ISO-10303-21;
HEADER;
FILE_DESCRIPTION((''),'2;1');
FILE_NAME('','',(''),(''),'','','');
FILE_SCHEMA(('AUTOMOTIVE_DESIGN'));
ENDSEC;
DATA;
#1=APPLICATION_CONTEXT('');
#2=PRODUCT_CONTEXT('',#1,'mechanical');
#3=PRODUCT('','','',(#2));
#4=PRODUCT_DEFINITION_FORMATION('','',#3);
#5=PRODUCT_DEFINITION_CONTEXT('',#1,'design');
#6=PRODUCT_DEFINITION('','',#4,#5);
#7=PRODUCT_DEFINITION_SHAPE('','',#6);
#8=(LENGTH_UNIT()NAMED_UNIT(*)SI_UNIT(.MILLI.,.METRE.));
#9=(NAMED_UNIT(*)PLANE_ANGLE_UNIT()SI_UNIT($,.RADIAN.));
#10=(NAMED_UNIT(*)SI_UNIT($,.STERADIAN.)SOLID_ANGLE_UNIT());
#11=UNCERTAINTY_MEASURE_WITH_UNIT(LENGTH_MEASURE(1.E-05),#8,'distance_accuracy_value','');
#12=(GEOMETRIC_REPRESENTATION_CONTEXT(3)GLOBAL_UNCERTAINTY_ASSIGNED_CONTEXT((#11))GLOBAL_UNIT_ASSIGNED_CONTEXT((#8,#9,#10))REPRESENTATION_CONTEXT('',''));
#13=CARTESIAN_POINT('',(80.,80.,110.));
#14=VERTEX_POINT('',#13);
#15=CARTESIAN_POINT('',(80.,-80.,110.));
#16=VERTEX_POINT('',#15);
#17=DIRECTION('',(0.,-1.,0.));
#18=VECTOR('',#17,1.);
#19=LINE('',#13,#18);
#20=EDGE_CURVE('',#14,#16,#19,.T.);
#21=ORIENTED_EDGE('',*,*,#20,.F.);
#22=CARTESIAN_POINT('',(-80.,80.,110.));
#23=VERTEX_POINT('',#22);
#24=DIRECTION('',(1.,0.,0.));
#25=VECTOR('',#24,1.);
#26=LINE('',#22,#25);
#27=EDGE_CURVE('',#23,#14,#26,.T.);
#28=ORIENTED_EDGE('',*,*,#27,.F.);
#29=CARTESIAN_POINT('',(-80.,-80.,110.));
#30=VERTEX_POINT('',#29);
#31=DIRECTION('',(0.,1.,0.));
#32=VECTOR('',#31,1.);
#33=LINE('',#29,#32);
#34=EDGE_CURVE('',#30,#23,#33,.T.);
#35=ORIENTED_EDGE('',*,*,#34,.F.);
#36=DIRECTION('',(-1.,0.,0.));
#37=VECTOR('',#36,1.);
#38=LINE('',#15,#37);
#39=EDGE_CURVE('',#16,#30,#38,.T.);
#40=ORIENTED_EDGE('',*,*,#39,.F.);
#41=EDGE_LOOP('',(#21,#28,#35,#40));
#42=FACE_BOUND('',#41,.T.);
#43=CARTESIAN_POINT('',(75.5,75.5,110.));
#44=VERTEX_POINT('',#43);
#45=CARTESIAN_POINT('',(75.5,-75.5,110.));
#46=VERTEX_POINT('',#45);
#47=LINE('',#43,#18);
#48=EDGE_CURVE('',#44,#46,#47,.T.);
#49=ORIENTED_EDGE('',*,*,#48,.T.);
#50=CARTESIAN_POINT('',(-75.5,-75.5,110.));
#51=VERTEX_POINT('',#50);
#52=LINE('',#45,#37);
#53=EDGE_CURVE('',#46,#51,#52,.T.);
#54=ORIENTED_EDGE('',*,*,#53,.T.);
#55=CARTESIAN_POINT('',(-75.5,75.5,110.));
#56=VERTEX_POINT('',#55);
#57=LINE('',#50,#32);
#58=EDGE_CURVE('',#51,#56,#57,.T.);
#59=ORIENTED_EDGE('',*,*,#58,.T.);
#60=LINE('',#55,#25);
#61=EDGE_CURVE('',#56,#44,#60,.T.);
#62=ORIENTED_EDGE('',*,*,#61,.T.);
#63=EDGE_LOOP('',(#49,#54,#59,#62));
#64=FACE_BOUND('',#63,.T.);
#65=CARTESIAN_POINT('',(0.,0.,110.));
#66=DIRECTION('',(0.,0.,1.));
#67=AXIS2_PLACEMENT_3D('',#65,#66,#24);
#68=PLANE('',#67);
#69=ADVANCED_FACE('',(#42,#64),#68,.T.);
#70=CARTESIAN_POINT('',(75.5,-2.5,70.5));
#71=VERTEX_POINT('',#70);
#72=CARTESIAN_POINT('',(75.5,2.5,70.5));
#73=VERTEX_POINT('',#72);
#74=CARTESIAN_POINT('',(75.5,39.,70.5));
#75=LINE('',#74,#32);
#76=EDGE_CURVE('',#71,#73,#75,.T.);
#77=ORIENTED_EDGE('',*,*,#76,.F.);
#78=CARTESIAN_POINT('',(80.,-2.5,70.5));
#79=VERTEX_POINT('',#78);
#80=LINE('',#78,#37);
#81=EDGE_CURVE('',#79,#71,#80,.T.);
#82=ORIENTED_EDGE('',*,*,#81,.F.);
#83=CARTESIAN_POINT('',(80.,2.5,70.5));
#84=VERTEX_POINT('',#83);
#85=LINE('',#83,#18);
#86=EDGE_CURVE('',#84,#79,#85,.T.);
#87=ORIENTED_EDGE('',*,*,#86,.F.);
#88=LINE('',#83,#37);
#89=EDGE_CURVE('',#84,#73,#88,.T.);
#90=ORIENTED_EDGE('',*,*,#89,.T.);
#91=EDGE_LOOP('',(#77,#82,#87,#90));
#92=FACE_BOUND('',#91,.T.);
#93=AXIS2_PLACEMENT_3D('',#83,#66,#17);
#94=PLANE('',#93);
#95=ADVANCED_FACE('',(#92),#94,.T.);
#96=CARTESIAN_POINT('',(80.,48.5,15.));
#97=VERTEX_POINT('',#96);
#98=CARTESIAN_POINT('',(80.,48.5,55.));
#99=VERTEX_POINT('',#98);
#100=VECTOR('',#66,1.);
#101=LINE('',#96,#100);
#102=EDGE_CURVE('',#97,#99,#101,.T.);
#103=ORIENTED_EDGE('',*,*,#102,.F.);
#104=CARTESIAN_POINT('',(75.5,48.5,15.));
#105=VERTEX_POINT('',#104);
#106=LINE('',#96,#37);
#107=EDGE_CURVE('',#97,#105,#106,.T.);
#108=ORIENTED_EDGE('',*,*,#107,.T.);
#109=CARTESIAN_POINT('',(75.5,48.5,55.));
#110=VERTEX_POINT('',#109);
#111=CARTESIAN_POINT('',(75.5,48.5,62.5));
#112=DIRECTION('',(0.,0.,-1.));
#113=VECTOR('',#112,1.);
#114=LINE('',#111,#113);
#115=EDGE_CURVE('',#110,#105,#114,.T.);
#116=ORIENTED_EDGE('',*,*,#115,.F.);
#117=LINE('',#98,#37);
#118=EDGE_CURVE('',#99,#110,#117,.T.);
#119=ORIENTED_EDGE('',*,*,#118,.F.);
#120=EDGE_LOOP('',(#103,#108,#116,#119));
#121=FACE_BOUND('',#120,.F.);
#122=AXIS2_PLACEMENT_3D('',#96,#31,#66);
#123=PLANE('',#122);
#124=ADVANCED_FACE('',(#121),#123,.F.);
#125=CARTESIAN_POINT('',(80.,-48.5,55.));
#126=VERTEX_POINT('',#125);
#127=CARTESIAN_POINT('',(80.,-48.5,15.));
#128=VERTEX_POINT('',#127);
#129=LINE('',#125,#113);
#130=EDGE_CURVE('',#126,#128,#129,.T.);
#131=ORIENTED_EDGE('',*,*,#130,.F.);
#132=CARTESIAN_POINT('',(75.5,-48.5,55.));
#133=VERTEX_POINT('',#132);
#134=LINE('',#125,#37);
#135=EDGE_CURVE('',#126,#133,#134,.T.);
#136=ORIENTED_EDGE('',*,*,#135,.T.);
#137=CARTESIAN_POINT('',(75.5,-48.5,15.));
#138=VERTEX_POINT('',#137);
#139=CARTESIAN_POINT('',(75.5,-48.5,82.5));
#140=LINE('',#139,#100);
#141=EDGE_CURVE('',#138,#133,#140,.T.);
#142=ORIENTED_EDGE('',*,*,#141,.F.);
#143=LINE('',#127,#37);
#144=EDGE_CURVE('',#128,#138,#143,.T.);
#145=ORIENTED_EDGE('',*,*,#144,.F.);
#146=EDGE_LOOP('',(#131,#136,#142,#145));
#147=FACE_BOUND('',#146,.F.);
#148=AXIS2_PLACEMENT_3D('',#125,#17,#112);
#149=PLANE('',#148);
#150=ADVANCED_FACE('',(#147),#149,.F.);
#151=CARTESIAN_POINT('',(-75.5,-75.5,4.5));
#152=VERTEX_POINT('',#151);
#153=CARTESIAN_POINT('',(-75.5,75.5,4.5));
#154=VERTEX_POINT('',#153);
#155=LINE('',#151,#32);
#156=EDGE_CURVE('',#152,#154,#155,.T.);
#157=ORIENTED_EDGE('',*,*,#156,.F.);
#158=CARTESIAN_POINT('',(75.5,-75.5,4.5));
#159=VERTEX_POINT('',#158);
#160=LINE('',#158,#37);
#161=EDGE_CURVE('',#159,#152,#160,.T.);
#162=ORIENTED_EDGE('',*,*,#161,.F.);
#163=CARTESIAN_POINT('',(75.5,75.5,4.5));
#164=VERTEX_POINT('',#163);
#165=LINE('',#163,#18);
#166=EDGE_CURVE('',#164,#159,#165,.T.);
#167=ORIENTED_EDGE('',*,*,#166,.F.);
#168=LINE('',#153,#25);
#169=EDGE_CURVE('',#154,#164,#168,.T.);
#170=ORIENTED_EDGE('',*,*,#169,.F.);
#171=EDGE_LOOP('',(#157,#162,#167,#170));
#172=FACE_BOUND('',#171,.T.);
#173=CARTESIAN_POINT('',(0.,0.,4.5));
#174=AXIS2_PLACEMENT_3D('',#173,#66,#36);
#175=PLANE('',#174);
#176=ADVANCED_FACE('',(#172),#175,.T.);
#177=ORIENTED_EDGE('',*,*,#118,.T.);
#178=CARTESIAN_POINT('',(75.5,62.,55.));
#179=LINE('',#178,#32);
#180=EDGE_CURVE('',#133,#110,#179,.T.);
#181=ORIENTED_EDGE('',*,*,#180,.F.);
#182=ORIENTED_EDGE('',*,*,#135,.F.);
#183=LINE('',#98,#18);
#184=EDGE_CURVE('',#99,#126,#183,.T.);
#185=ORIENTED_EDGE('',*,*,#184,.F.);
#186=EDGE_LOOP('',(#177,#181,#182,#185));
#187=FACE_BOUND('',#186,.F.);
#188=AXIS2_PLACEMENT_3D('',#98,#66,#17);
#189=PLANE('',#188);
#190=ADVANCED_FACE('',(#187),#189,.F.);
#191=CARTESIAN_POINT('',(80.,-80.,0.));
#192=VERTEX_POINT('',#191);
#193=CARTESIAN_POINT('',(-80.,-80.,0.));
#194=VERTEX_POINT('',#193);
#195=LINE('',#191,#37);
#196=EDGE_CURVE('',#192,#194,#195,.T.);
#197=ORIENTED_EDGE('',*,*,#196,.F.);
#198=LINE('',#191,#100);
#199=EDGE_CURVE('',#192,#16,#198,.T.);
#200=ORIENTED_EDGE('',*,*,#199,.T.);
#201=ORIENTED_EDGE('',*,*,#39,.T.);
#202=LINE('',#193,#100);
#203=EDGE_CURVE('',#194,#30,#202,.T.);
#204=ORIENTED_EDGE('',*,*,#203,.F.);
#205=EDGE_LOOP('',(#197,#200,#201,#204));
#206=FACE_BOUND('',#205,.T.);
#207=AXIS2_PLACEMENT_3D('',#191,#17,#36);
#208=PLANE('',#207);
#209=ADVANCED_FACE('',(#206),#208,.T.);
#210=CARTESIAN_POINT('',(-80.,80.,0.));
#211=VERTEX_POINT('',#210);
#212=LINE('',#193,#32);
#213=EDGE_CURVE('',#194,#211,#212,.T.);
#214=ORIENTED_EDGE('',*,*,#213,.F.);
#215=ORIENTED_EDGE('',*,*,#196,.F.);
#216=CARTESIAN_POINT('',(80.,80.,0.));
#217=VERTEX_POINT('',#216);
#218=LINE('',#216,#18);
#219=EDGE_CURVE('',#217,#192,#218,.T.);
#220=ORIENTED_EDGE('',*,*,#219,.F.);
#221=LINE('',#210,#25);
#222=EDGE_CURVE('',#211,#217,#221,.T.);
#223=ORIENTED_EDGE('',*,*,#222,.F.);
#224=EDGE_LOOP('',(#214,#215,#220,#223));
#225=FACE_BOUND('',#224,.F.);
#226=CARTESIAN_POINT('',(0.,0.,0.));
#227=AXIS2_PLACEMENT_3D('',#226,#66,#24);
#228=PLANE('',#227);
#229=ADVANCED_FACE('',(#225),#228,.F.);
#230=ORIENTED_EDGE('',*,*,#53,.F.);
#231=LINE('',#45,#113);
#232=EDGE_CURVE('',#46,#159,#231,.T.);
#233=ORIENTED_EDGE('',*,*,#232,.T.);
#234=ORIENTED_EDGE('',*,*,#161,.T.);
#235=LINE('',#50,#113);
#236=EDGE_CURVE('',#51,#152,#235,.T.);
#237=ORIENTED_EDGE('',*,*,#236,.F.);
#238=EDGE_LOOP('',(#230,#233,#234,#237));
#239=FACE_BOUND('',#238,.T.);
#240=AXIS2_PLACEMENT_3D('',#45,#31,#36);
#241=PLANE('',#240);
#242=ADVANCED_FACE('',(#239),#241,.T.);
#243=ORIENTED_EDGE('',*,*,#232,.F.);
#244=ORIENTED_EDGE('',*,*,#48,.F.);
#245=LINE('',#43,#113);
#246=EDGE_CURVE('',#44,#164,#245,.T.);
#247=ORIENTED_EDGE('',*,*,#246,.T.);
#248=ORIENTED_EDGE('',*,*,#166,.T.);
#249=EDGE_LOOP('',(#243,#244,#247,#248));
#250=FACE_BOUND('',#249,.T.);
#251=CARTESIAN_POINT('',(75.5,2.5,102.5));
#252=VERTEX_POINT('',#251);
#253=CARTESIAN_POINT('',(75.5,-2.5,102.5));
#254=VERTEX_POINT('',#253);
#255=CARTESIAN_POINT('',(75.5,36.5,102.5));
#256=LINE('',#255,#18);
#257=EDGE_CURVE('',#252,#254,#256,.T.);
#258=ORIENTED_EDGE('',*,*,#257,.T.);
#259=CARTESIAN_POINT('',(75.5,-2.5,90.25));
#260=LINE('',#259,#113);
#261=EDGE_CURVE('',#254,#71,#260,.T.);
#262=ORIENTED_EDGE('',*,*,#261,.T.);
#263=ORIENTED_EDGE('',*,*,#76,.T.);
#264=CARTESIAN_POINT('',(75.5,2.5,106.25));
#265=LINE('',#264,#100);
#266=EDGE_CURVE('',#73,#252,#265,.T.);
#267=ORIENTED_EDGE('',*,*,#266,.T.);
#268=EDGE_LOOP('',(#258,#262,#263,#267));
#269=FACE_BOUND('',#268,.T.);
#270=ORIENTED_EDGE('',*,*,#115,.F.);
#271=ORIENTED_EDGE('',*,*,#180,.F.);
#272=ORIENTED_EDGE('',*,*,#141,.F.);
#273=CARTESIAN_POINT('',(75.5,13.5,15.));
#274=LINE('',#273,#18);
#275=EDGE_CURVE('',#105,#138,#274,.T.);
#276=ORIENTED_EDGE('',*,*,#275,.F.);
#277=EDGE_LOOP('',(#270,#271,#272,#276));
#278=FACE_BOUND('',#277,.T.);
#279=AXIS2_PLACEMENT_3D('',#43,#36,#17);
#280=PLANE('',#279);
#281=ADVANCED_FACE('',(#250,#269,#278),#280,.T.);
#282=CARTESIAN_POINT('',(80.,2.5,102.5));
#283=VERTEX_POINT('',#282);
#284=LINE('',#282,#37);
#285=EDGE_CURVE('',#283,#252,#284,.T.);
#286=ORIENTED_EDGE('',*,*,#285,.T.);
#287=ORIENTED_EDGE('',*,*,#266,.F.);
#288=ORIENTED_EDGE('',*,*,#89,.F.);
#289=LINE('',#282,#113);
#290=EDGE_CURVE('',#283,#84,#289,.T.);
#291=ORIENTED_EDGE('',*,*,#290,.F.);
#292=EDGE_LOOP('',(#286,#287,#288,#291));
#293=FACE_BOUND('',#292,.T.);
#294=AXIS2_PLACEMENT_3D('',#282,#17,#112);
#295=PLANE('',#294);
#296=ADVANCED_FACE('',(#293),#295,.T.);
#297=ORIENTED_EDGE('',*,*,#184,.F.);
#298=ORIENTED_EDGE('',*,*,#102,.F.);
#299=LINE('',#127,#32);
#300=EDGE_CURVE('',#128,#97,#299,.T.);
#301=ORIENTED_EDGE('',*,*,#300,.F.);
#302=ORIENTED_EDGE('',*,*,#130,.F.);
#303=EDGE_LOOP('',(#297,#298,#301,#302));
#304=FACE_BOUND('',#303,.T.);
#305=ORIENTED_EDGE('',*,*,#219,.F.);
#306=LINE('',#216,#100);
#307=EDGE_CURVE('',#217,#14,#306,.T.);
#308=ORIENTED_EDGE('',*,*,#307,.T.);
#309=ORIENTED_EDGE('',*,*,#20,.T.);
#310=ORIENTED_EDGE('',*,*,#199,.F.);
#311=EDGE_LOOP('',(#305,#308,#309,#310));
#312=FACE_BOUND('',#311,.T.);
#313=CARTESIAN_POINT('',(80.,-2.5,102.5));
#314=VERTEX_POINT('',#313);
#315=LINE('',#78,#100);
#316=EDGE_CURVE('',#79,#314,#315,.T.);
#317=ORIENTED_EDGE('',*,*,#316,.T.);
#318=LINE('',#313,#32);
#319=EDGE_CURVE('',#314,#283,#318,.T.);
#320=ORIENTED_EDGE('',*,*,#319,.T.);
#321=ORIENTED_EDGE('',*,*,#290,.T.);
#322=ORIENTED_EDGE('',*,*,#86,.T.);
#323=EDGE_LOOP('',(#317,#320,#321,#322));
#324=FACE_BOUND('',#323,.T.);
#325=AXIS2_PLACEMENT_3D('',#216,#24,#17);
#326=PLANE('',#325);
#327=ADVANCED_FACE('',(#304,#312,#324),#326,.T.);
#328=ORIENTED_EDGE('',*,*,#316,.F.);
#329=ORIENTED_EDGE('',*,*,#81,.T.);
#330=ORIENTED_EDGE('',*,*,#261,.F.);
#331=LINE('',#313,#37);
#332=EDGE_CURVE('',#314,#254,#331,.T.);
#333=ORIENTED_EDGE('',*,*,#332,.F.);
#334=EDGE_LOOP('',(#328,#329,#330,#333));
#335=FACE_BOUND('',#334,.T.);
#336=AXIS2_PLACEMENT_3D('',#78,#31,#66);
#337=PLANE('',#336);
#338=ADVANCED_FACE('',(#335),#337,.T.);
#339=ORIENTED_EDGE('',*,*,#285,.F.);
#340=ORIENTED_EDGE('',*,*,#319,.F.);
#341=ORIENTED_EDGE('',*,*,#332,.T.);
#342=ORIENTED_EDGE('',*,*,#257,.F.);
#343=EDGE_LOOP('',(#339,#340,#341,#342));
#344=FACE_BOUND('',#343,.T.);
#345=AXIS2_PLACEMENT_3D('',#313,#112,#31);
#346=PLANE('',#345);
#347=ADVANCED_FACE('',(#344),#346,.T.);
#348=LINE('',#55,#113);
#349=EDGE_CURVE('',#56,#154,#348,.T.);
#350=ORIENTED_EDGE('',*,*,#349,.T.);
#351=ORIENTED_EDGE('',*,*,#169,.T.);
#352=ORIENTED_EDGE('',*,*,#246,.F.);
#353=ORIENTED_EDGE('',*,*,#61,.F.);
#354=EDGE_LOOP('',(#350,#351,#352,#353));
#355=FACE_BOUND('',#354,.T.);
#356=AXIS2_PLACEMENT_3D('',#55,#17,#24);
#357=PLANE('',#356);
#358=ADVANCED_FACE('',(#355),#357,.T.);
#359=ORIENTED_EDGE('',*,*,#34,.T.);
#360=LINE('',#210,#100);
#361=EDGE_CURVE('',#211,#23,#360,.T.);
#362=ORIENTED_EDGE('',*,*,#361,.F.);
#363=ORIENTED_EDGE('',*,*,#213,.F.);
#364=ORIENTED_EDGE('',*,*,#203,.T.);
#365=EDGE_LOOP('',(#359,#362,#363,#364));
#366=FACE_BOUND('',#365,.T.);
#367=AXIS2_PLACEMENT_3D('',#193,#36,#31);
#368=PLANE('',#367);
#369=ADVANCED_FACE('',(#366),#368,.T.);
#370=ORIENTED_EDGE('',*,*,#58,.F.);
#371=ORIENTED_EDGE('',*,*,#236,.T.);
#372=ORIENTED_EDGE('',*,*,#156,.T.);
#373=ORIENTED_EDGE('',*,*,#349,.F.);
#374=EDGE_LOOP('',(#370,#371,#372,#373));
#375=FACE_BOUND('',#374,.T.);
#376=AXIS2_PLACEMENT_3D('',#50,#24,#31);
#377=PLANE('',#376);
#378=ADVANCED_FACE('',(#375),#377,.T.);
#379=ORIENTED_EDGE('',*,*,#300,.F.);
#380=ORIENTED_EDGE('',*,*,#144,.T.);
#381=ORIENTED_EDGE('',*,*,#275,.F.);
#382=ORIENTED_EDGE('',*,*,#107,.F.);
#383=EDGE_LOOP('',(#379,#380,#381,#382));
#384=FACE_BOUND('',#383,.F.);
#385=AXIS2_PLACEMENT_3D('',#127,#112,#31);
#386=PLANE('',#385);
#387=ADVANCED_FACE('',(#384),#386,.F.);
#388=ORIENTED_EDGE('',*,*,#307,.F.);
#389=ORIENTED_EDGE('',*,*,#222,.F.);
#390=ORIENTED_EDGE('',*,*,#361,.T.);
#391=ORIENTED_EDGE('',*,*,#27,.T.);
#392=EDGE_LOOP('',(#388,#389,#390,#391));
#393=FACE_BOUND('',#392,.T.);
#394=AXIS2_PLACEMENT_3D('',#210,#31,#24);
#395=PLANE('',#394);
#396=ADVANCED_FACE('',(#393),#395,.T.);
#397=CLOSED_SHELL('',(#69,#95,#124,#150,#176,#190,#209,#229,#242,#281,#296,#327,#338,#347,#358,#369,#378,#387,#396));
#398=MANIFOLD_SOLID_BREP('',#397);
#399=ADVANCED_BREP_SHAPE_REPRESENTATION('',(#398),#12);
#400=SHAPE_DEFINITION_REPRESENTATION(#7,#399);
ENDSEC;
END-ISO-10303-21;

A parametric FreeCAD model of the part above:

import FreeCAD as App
import Part
import Sketcher

V = App.Vector
Q = App.Units.Quantity

doc = App.newDocument("Part")
body = doc.addObject("PartDesign::Body", "Body")

# Sketch on XY plane
sketch1 = doc.addObject("Sketcher::SketchObject", "Sketch")
body.addObject(sketch1)
sketch1.AttachmentSupport = (doc.XY_Plane, [""])
sketch1.MapMode = "FlatFace"
sketch1.addGeometry([
    Part.LineSegment(V(80, 80, 0), V(-80, 80, 0)),
    Part.LineSegment(V(-80, 80, 0), V(-80, -80, 0)),
    Part.LineSegment(V(-80, -80, 0), V(80, -80, 0)),
    Part.LineSegment(V(80, -80, 0), V(80, 80, 0)),
], False)
sketch1.addConstraint([
    Sketcher.Constraint("Coincident", 0, 2, 1, 1),
    Sketcher.Constraint("Coincident", 1, 2, 2, 1),
    Sketcher.Constraint("Coincident", 2, 2, 3, 1),
    Sketcher.Constraint("Coincident", 3, 2, 0, 1),
    Sketcher.Constraint("Horizontal", 0),
    Sketcher.Constraint("Vertical", 1),
    Sketcher.Constraint("Horizontal", 2),
    Sketcher.Constraint("Vertical", 3),
    Sketcher.Constraint("Symmetric", 0, 2, 2, 2, -1, 1),
    Sketcher.Constraint("Equal", 2, 1),
    Sketcher.Constraint("DistanceX", 0, 2, 0, 1, Q("160 mm")),
])
pad1 = doc.addObject("PartDesign::Pad", "Pad")
body.addObject(pad1)
pad1.Profile = sketch1
pad1.Length = 110

# Sketch on XY plane
sketch2 = doc.addObject("Sketcher::SketchObject", "Sketch001")
body.addObject(sketch2)
sketch2.AttachmentSupport = (doc.XY_Plane, [""])
sketch2.MapMode = "FlatFace"
sketch2.AttachmentOffset = App.Placement(V(0, 0, 110), App.Rotation())
sketch2.addGeometry([
    Part.LineSegment(V(76, 76, 0), V(-76, 76, 0)),
    Part.LineSegment(V(-76, 76, 0), V(-76, -76, 0)),
    Part.LineSegment(V(-76, -76, 0), V(76, -76, 0)),
    Part.LineSegment(V(76, -76, 0), V(76, 76, 0)),
], False)
sketch2.addConstraint([
    Sketcher.Constraint("Coincident", 0, 2, 1, 1),
    Sketcher.Constraint("Coincident", 1, 2, 2, 1),
    Sketcher.Constraint("Coincident", 2, 2, 3, 1),
    Sketcher.Constraint("Coincident", 3, 2, 0, 1),
    Sketcher.Constraint("Horizontal", 0),
    Sketcher.Constraint("Vertical", 1),
    Sketcher.Constraint("Horizontal", 2),
    Sketcher.Constraint("Vertical", 3),
    Sketcher.Constraint("Symmetric", 0, 2, 2, 2, -1, 1),
    Sketcher.Constraint("Equal", 2, 1),
    Sketcher.Constraint("DistanceX", 0, 2, 0, 1, Q("151 mm")),
])
pocket1 = doc.addObject("PartDesign::Pocket", "Pocket")
body.addObject(pocket1)
pocket1.Profile = sketch2
pocket1.Length = 105.5

# Sketch on YZ plane
sketch3 = doc.addObject("Sketcher::SketchObject", "Sketch002")
body.addObject(sketch3)
sketch3.AttachmentSupport = (doc.YZ_Plane, [""])
sketch3.MapMode = "FlatFace"
sketch3.AttachmentOffset = App.Placement(V(0, 0, 80), App.Rotation())
sketch3.addGeometry([
    Part.LineSegment(V(-2, 70, 0), V(2, 70, 0)),
    Part.LineSegment(V(2, 70, 0), V(2, 102, 0)),
    Part.LineSegment(V(2, 102, 0), V(-2, 102, 0)),
    Part.LineSegment(V(-2, 102, 0), V(-2, 70, 0)),
], False)
sketch3.addConstraint([
    Sketcher.Constraint("Coincident", 0, 2, 1, 1),
    Sketcher.Constraint("Coincident", 1, 2, 2, 1),
    Sketcher.Constraint("Coincident", 2, 2, 3, 1),
    Sketcher.Constraint("Coincident", 3, 2, 0, 1),
    Sketcher.Constraint("Horizontal", 0),
    Sketcher.Constraint("Vertical", 1),
    Sketcher.Constraint("Horizontal", 2),
    Sketcher.Constraint("Vertical", 3),
    Sketcher.Constraint("DistanceX", 0, 1, 0, 2, Q("5 mm")),
    Sketcher.Constraint("DistanceY", 1, 1, 1, 2, Q("32 mm")),
    Sketcher.Constraint("DistanceX", -1, 1, 0, 2, Q("2.5 mm")),
    Sketcher.Constraint("DistanceY", -1, 1, 0, 2, Q("70.5 mm")),
])
pocket2 = doc.addObject("PartDesign::Pocket", "Pocket001")
body.addObject(pocket2)
pocket2.Profile = sketch3
pocket2.Length = 5

# Sketch on YZ plane
sketch4 = doc.addObject("Sketcher::SketchObject", "Sketch003")
body.addObject(sketch4)
sketch4.AttachmentSupport = (doc.YZ_Plane, [""])
sketch4.MapMode = "FlatFace"
sketch4.AttachmentOffset = App.Placement(V(0, 0, 80), App.Rotation())
sketch4.addGeometry([
    Part.LineSegment(V(48, 15, 0), V(48, 55, 0)),
    Part.LineSegment(V(48, 55, 0), V(-48, 55, 0)),
    Part.LineSegment(V(-48, 55, 0), V(-48, 15, 0)),
    Part.LineSegment(V(-48, 15, 0), V(48, 15, 0)),
], False)
sketch4.addConstraint([
    Sketcher.Constraint("Coincident", 0, 2, 1, 1),
    Sketcher.Constraint("Coincident", 1, 2, 2, 1),
    Sketcher.Constraint("Coincident", 2, 2, 3, 1),
    Sketcher.Constraint("Coincident", 3, 2, 0, 1),
    Sketcher.Constraint("Vertical", 0),
    Sketcher.Constraint("Horizontal", 1),
    Sketcher.Constraint("Vertical", 2),
    Sketcher.Constraint("Horizontal", 3),
    Sketcher.Constraint("DistanceX", 1, 2, 1, 1, Q("97 mm")),
    Sketcher.Constraint("DistanceY", 0, 1, 0, 2, Q("40 mm")),
    Sketcher.Constraint("DistanceY", -1, 1, 2, 2, Q("15 mm")),
    Sketcher.Constraint("DistanceX", -1, 1, 0, 2, Q("48.5 mm")),
])
pocket3 = doc.addObject("PartDesign::Pocket", "Pocket002")
body.addObject(pocket3)
pocket3.Profile = sketch4
pocket3.Length = 5

doc.recompute()
